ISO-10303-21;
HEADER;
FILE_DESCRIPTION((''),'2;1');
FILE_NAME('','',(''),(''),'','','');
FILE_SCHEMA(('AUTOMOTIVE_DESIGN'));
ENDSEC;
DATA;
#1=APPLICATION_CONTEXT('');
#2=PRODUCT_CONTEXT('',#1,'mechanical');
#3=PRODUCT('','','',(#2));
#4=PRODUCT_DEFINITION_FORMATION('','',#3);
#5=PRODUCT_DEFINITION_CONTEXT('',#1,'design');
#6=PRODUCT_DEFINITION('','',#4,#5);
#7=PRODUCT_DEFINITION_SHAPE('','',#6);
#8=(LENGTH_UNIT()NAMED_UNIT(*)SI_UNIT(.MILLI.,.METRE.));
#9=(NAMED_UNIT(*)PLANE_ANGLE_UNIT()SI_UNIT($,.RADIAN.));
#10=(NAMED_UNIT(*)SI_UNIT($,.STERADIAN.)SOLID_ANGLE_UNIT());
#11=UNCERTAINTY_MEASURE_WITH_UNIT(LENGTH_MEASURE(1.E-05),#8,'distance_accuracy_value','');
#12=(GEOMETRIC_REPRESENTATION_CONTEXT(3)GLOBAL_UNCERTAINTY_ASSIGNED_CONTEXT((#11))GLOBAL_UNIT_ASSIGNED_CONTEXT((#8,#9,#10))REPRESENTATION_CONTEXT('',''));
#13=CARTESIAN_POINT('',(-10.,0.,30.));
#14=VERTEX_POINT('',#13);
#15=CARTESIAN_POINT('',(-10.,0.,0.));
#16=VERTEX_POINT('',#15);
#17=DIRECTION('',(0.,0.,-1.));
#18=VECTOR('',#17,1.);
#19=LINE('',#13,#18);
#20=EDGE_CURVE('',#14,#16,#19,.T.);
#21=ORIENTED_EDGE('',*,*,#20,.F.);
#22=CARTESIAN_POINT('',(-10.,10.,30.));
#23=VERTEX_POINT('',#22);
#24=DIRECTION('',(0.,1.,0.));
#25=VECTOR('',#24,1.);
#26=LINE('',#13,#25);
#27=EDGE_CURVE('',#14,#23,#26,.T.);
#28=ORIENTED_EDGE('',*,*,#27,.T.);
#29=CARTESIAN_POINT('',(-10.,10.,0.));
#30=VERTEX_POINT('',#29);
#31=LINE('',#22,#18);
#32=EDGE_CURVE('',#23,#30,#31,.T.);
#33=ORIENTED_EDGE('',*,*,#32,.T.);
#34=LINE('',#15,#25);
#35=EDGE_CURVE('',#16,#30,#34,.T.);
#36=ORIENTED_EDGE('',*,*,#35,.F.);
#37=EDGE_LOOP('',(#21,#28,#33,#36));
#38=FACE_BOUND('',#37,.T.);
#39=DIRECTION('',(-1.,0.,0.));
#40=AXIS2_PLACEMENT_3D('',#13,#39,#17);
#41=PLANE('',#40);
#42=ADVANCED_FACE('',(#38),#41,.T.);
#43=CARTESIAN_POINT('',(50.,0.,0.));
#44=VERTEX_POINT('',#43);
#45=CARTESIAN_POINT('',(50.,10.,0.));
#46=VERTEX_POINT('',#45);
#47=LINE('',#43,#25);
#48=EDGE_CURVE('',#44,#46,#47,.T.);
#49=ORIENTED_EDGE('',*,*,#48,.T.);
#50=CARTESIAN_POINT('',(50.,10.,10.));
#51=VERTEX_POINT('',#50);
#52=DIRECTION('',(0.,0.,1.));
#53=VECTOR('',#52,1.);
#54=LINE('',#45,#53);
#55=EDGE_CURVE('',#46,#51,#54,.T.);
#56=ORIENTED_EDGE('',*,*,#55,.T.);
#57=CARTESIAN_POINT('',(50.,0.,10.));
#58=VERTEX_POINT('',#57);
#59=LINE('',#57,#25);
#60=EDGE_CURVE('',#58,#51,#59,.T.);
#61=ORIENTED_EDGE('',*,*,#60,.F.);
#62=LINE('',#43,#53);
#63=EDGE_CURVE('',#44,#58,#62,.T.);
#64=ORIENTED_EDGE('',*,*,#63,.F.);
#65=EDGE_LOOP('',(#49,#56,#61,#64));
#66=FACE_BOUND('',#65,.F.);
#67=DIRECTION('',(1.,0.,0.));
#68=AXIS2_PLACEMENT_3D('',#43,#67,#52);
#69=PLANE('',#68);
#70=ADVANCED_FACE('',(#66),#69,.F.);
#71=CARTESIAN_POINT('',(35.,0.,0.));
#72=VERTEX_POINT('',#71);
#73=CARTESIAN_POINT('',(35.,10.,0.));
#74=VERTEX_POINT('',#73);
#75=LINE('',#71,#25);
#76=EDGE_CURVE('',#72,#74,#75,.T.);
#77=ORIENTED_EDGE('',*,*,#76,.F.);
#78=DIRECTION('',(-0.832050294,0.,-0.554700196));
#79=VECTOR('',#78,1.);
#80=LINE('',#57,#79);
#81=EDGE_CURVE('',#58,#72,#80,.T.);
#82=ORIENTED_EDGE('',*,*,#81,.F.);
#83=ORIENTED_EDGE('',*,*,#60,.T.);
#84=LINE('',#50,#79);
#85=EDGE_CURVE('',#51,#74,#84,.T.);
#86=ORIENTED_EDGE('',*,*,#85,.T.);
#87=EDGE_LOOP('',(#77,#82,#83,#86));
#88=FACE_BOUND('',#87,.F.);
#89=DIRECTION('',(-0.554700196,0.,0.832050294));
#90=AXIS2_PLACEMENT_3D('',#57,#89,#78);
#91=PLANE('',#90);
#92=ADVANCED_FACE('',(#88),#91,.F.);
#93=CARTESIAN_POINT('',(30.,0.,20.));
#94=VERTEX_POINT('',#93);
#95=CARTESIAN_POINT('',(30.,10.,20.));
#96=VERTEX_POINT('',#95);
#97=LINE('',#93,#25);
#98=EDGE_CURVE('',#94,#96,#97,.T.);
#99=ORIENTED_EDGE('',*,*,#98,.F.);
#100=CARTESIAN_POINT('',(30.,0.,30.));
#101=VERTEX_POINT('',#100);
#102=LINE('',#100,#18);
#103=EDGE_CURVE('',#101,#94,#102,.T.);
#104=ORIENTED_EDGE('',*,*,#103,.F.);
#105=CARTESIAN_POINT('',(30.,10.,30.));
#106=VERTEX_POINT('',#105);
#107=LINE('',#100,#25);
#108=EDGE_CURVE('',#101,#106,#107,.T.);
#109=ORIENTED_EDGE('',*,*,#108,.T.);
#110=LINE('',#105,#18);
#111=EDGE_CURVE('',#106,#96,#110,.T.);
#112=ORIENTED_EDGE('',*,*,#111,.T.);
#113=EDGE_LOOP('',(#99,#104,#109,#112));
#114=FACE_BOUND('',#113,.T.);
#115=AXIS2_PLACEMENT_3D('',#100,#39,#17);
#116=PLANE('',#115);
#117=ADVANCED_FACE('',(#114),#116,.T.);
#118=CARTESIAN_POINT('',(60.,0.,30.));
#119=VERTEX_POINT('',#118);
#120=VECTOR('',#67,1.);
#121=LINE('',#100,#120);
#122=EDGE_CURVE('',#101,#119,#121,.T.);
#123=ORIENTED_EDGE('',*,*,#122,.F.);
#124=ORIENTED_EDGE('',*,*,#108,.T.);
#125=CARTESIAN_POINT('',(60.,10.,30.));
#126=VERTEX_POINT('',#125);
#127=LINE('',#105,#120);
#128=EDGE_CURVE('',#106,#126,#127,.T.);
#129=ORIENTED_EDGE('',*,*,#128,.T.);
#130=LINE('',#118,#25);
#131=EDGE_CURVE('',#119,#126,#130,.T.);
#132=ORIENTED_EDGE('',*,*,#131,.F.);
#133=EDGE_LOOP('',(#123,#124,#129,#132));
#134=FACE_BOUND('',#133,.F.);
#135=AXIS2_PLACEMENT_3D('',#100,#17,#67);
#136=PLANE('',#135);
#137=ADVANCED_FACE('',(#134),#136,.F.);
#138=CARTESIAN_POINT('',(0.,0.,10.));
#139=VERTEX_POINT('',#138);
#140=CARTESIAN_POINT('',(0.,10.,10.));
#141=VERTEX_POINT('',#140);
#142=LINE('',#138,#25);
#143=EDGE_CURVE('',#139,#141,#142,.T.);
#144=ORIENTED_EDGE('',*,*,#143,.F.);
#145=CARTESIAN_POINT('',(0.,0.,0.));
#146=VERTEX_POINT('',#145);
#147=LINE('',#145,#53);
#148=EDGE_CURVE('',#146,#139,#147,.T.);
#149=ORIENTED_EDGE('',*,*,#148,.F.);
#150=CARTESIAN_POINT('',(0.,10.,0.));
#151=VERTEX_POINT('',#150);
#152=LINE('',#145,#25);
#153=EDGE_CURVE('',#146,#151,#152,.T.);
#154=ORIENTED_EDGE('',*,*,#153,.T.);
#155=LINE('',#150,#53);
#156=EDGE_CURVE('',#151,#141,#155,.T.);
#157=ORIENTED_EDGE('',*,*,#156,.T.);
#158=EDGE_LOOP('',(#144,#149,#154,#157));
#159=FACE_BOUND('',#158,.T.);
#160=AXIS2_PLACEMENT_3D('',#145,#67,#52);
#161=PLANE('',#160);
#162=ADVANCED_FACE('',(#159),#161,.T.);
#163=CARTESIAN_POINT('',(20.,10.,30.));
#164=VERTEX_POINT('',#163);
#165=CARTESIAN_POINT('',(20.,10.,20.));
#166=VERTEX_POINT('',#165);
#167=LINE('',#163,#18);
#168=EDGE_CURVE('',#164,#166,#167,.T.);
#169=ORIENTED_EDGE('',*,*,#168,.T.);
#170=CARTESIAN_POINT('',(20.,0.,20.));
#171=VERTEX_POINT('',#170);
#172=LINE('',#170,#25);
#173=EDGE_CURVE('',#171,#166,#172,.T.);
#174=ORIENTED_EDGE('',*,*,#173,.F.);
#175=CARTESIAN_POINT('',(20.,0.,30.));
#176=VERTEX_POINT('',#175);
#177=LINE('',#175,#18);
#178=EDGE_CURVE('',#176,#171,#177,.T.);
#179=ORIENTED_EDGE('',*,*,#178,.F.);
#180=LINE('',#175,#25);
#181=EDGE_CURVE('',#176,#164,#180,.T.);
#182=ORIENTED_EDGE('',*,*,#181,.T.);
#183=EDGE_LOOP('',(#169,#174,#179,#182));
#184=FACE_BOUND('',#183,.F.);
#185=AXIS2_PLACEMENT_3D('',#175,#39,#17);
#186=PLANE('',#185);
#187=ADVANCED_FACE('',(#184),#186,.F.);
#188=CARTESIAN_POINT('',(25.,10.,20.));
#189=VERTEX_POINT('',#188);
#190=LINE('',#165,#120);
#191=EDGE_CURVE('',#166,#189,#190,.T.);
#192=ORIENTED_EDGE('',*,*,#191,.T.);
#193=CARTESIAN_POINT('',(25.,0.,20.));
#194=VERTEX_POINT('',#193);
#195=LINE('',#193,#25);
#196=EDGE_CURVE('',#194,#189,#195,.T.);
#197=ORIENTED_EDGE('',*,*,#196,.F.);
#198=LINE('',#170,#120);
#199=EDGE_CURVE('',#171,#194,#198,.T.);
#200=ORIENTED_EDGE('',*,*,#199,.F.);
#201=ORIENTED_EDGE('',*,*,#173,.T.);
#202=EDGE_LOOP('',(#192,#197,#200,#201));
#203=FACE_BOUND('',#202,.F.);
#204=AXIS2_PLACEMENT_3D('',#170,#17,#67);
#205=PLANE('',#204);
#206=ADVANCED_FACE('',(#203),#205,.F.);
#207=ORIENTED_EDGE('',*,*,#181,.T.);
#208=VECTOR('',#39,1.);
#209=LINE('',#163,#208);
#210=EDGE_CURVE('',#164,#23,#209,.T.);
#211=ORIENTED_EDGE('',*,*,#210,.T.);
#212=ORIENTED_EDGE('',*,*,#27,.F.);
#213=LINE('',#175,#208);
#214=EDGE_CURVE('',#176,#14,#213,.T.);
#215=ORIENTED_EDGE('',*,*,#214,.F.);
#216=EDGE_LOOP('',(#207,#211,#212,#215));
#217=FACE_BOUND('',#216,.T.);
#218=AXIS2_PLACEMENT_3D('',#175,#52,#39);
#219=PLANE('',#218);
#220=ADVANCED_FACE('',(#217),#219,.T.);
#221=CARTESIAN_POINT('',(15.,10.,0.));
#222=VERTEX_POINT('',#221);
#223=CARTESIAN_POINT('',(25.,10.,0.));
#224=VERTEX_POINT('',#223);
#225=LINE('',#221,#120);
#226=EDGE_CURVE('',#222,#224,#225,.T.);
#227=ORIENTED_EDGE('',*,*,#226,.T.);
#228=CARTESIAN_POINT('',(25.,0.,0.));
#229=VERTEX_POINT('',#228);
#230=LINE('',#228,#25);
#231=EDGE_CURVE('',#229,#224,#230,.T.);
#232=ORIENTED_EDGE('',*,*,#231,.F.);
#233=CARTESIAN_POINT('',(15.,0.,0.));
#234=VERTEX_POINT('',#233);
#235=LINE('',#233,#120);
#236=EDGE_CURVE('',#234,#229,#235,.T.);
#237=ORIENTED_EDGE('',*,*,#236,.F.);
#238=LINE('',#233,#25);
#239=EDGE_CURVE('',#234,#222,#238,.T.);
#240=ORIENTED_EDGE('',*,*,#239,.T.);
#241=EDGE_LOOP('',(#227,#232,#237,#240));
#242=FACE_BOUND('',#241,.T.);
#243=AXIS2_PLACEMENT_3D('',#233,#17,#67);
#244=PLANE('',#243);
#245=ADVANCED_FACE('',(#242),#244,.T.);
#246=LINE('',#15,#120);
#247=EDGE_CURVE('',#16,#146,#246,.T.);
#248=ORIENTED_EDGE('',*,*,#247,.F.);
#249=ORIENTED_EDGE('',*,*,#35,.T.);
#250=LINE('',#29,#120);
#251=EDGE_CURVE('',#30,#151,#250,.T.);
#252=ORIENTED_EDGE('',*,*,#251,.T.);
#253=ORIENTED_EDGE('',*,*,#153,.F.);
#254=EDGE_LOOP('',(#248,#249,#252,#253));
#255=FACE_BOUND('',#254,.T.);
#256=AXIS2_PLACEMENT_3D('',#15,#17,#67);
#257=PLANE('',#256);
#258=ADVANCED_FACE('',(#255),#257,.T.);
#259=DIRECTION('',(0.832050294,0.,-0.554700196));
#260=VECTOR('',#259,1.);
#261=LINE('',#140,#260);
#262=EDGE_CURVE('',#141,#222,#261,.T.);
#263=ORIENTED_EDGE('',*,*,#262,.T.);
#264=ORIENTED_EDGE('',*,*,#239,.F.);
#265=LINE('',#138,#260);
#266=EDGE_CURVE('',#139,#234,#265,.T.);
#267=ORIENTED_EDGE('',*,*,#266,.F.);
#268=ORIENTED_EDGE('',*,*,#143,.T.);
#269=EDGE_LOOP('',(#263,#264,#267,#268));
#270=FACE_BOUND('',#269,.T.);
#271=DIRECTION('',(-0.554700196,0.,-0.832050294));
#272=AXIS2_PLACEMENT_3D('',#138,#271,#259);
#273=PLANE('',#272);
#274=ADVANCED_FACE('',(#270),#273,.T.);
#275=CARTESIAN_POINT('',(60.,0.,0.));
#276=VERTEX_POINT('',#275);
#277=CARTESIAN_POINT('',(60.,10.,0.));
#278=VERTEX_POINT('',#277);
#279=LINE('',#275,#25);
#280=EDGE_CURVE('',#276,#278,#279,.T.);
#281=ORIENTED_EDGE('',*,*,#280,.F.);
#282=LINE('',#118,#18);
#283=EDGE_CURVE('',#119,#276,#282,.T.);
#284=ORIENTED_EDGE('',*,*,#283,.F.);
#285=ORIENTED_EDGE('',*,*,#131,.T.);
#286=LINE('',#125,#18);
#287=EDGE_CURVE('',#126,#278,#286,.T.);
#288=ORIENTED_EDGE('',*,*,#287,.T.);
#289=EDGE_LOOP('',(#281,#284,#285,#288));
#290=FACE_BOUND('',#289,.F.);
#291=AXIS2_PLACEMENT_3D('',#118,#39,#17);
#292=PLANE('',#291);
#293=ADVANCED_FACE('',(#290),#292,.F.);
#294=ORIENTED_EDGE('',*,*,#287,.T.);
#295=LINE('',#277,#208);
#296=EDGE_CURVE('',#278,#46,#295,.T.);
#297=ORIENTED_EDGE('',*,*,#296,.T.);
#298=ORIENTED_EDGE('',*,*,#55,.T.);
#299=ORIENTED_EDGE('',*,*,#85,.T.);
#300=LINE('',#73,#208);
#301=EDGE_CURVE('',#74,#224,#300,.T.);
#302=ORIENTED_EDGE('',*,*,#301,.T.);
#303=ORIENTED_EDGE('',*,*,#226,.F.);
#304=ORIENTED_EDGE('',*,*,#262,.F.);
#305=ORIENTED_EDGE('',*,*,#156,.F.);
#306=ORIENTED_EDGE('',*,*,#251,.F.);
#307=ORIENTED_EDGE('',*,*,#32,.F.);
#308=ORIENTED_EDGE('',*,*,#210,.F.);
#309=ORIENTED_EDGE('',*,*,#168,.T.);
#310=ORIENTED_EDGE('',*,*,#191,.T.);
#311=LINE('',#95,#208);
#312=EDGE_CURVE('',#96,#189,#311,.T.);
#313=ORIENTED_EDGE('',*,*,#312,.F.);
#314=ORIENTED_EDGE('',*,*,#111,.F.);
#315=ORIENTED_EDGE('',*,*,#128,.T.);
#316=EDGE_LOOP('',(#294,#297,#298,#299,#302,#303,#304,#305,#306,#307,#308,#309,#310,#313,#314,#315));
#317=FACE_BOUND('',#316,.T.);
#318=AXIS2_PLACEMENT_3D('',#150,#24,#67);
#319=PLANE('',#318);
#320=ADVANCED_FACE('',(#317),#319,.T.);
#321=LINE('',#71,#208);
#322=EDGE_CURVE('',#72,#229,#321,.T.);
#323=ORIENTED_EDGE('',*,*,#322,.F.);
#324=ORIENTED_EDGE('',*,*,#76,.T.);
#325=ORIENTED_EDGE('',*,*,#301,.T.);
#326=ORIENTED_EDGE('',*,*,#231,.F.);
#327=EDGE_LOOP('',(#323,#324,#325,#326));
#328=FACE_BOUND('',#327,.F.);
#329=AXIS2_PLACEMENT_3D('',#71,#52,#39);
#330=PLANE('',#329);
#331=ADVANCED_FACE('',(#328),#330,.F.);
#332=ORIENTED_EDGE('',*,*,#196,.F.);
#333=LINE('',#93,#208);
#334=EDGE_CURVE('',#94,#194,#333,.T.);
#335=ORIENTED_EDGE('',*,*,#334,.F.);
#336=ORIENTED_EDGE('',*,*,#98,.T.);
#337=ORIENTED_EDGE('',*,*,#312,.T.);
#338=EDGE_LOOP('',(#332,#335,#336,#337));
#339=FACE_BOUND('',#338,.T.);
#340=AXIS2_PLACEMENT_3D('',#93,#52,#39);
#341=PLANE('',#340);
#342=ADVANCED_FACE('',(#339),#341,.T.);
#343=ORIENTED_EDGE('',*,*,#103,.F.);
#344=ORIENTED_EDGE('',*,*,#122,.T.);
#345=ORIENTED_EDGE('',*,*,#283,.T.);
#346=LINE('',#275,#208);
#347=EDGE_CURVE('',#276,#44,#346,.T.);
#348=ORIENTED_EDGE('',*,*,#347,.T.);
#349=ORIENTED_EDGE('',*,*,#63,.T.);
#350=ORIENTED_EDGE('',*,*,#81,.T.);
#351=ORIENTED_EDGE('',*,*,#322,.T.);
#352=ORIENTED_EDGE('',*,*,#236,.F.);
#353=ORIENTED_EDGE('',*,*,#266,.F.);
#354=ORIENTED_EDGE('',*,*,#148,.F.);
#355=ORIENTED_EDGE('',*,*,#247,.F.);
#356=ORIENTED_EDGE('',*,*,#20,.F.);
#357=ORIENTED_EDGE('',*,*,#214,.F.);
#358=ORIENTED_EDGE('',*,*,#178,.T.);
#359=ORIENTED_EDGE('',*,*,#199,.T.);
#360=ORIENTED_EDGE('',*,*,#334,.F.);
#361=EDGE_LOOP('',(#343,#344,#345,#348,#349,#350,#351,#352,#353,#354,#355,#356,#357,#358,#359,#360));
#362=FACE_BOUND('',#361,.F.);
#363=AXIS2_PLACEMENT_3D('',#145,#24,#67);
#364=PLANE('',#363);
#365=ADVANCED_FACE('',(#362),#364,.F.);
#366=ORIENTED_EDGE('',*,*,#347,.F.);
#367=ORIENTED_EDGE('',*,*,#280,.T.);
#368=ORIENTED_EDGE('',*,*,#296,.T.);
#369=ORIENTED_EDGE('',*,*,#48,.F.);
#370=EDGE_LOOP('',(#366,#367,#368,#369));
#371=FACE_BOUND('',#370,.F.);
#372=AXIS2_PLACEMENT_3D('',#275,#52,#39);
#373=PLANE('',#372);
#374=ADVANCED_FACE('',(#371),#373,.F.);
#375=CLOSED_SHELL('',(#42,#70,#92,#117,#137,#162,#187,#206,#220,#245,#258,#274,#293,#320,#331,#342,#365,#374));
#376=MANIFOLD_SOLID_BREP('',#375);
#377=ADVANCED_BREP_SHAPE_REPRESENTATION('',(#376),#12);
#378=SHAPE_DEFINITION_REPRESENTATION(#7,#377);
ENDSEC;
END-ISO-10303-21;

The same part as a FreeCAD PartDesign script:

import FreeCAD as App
import Part
import Sketcher

V = App.Vector
Q = App.Units.Quantity


def add_polygon(sketch, points):
    """Adds a closed chain of lines whose ends are joined by coincident constraints."""
    first, n = sketch.GeometryCount, len(points)
    for a, b in zip(points, points[1:] + points[:1]):
        sketch.addGeometry(Part.LineSegment(App.Vector(*a, 0), App.Vector(*b, 0)), False)
    for i in range(n):
        sketch.addConstraint(Sketcher.Constraint("Coincident", first + i, 2, first + (i + 1) % n, 1))

doc = App.newDocument("Part")
body = doc.addObject("PartDesign::Body", "Body")

# Sketch on XZ plane
sketch1 = body.newObject("Sketcher::SketchObject", "Sketch")
sketch1.AttachmentSupport = (doc.getObject("XZ_Plane"), [""])
sketch1.MapMode = "FlatFace"
add_polygon(sketch1, [(-10, 30), (20, 30), (20, 20), (30, 20), (30, 30), (60, 30), (60, 0), (50, 0), (50, 10), (35, 0), (15, 0), (0, 10), (0, 0), (-10, 0)])  # lines 0-13
sketch1.addConstraint([
    Sketcher.Constraint("Horizontal", 0),
    Sketcher.Constraint("Vertical", 1),
    Sketcher.Constraint("Horizontal", 2),
    Sketcher.Constraint("Vertical", 3),
    Sketcher.Constraint("Horizontal", 4),
    Sketcher.Constraint("Vertical", 5),
    Sketcher.Constraint("Horizontal", 6),
    Sketcher.Constraint("Vertical", 7),
    Sketcher.Constraint("Horizontal", 9),
    Sketcher.Constraint("Vertical", 11),
    Sketcher.Constraint("Horizontal", 12),
    Sketcher.Constraint("Vertical", 13),
    Sketcher.Constraint("Coincident", 11, 2, -1, 1),
    Sketcher.Constraint("PointOnObject", 5, 2, -1),
    Sketcher.Constraint("PointOnObject", 8, 2, -1),
    Sketcher.Constraint("Horizontal", 0, 2, 3, 2),
    Sketcher.Constraint("Horizontal", 7, 2, 10, 2),
    Sketcher.Constraint("Equal", 0, 4),
    Sketcher.Constraint("Equal", 2, 6),
    Sketcher.Constraint("Equal", 6, 12),
    Sketcher.Constraint("Equal", 12, 1),
    Sketcher.Constraint("Equal", 4, 5),
    Sketcher.Constraint("Equal", 3, 7),
    Sketcher.Constraint("Equal", 8, 10),
    Sketcher.Constraint("DistanceX", 0, 1, 0, 2, Q("30 mm")),
    Sketcher.Constraint("DistanceX", 2, 1, 2, 2, Q("10 mm")),
    Sketcher.Constraint("DistanceX", -1, 1, 9, 2, Q("15 mm")),
])
pad1 = body.newObject("PartDesign::Pad", "Pad")
pad1.Profile = sketch1
pad1.Length = 10
pad1.Reversed = True

doc.recompute()
